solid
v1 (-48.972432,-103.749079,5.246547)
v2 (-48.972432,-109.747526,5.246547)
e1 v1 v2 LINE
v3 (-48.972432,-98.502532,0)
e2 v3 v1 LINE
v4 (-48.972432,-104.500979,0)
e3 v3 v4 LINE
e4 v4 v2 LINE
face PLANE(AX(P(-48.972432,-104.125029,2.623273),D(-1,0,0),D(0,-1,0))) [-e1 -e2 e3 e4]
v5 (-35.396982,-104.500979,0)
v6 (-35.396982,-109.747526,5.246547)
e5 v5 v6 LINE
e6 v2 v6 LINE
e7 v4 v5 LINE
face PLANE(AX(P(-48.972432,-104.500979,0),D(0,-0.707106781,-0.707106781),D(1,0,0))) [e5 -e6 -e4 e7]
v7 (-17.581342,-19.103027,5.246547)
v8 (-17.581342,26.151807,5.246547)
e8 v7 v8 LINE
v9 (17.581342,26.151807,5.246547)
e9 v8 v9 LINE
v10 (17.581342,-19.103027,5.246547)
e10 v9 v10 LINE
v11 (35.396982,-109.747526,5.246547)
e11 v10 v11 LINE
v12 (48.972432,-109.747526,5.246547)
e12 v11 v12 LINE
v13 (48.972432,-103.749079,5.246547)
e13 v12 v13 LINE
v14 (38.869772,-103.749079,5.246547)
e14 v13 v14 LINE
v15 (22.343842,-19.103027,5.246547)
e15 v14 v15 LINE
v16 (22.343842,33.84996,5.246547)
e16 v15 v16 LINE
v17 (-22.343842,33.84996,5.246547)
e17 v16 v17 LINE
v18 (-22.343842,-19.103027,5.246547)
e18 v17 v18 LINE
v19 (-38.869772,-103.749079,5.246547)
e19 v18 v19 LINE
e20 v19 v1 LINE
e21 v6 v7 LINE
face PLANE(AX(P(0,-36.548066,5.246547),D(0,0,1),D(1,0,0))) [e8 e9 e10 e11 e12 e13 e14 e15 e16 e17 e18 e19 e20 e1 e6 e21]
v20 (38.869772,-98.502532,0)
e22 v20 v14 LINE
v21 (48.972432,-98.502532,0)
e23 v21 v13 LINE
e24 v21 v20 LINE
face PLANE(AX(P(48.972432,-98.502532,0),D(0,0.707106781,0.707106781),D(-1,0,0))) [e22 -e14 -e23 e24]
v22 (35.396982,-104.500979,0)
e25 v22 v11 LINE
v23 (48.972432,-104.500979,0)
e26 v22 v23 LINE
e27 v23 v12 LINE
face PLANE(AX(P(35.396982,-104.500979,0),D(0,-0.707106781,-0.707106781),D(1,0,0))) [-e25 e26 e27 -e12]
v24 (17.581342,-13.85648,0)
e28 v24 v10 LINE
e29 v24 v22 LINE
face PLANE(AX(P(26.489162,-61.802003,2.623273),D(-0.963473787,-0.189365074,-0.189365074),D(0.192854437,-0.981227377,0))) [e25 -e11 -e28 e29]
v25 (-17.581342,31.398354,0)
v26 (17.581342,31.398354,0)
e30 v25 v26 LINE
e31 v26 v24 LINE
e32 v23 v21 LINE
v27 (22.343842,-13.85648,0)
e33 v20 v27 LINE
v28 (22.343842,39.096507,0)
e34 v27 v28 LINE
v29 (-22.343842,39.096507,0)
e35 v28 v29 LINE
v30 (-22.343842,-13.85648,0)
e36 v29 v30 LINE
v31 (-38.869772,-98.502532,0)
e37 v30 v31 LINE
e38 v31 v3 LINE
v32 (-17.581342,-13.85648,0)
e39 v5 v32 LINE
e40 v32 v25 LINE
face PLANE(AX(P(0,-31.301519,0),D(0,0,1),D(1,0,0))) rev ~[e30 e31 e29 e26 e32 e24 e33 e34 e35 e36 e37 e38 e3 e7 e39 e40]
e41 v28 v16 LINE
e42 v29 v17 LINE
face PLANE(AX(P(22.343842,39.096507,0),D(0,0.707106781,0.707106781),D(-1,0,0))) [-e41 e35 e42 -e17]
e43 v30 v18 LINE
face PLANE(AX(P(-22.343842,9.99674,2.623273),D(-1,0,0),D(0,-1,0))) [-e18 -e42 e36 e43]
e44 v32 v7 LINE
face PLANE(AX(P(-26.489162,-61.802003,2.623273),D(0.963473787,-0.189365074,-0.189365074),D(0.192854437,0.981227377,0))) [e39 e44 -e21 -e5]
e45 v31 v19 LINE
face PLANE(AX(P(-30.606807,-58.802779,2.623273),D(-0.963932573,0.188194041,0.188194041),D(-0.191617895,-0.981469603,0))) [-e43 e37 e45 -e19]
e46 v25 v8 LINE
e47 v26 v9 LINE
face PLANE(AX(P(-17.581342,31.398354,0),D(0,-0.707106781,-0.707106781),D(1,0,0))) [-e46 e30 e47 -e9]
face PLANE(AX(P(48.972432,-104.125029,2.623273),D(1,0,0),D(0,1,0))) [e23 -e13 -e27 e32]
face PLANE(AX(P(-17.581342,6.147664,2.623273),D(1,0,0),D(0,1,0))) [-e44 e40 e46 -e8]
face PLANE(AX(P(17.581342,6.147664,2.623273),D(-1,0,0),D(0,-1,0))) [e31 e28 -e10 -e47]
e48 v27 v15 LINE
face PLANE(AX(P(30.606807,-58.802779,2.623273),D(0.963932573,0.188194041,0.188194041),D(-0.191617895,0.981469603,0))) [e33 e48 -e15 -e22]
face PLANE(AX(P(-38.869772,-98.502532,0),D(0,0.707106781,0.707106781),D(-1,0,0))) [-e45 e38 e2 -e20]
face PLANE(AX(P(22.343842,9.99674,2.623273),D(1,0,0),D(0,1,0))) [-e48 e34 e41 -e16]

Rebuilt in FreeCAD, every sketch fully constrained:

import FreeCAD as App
import Part
import Sketcher

doc = App.newDocument("Part")
body = doc.addObject("PartDesign::Body", "Body")

sketch1 = body.newObject("Sketcher::SketchObject", "Sketch")
sketch1.AttachmentSupport = (doc.getObject("XY_Plane"), [""])
sketch1.MapMode = "FlatFace"
sketch1.addGeometry(Part.LineSegment(App.Vector(-18, -14, 0), App.Vector(-18, 31, 0)), False)
sketch1.addGeometry(Part.LineSegment(App.Vector(-18, 31, 0), App.Vector(18, 31, 0)), False)
sketch1.addGeometry(Part.LineSegment(App.Vector(18, 31, 0), App.Vector(18, -14, 0)), False)
sketch1.addGeometry(Part.LineSegment(App.Vector(18, -14, 0), App.Vector(35, -105, 0)), False)
sketch1.addGeometry(Part.LineSegment(App.Vector(35, -105, 0), App.Vector(49, -105, 0)), False)
sketch1.addGeometry(Part.LineSegment(App.Vector(49, -105, 0), App.Vector(49, -99, 0)), False)
sketch1.addGeometry(Part.LineSegment(App.Vector(49, -99, 0), App.Vector(39, -99, 0)), False)
sketch1.addGeometry(Part.LineSegment(App.Vector(39, -99, 0), App.Vector(22, -14, 0)), False)
sketch1.addGeometry(Part.LineSegment(App.Vector(22, -14, 0), App.Vector(22, 39, 0)), False)
sketch1.addGeometry(Part.LineSegment(App.Vector(22, 39, 0), App.Vector(-22, 39, 0)), False)
sketch1.addGeometry(Part.LineSegment(App.Vector(-22, 39, 0), App.Vector(-22, -14, 0)), False)
sketch1.addGeometry(Part.LineSegment(App.Vector(-22, -14, 0), App.Vector(-39, -99, 0)), False)
sketch1.addGeometry(Part.LineSegment(App.Vector(-39, -99, 0), App.Vector(-49, -99, 0)), False)
sketch1.addGeometry(Part.LineSegment(App.Vector(-49, -99, 0), App.Vector(-49, -105, 0)), False)
sketch1.addGeometry(Part.LineSegment(App.Vector(-49, -105, 0), App.Vector(-35, -105, 0)), False)
sketch1.addGeometry(Part.LineSegment(App.Vector(-35, -105, 0), App.Vector(-18, -14, 0)), False)
sketch1.addConstraint(Sketcher.Constraint("Coincident", 0, 2, 1, 1))
sketch1.addConstraint(Sketcher.Constraint("Coincident", 1, 2, 2, 1))
sketch1.addConstraint(Sketcher.Constraint("Coincident", 2, 2, 3, 1))
sketch1.addConstraint(Sketcher.Constraint("Coincident", 3, 2, 4, 1))
sketch1.addConstraint(Sketcher.Constraint("Coincident", 4, 2, 5, 1))
sketch1.addConstraint(Sketcher.Constraint("Coincident", 5, 2, 6, 1))
sketch1.addConstraint(Sketcher.Constraint("Coincident", 6, 2, 7, 1))
sketch1.addConstraint(Sketcher.Constraint("Coincident", 7, 2, 8, 1))
sketch1.addConstraint(Sketcher.Constraint("Coincident", 8, 2, 9, 1))
sketch1.addConstraint(Sketcher.Constraint("Coincident", 9, 2, 10, 1))
sketch1.addConstraint(Sketcher.Constraint("Coincident", 10, 2, 11, 1))
sketch1.addConstraint(Sketcher.Constraint("Coincident", 11, 2, 12, 1))
sketch1.addConstraint(Sketcher.Constraint("Coincident", 12, 2, 13, 1))
sketch1.addConstraint(Sketcher.Constraint("Coincident", 13, 2, 14, 1))
sketch1.addConstraint(Sketcher.Constraint("Coincident", 14, 2, 15, 1))
sketch1.addConstraint(Sketcher.Constraint("Coincident", 15, 2, 0, 1))
sketch1.addConstraint(Sketcher.Constraint("Vertical", 0))
sketch1.addConstraint(Sketcher.Constraint("Horizontal", 1))
sketch1.addConstraint(Sketcher.Constraint("Vertical", 2))
sketch1.addConstraint(Sketcher.Constraint("Horizontal", 4))
sketch1.addConstraint(Sketcher.Constraint("Vertical", 5))
sketch1.addConstraint(Sketcher.Constraint("Horizontal", 6))
sketch1.addConstraint(Sketcher.Constraint("Vertical", 8))
sketch1.addConstraint(Sketcher.Constraint("Horizontal", 9))
sketch1.addConstraint(Sketcher.Constraint("Vertical", 10))
sketch1.addConstraint(Sketcher.Constraint("Horizontal", 12))
sketch1.addConstraint(Sketcher.Constraint("Vertical", 13))
sketch1.addConstraint(Sketcher.Constraint("Horizontal", 14))
sketch1.addConstraint(Sketcher.Constraint("Symmetric", 7, 2, 10, 2, -2))
sketch1.addConstraint(Sketcher.Constraint("Symmetric", 6, 2, 11, 2, -2))
sketch1.addConstraint(Sketcher.Constraint("Symmetric", 4, 2, 13, 2, -2))
sketch1.addConstraint(Sketcher.Constraint("Symmetric", 2, 2, 15, 2, -2))
sketch1.addConstraint(Sketcher.Constraint("Horizontal", 2, 2, 7, 2))
sketch1.addConstraint(Sketcher.Constraint("Equal", 4, 14))
sketch1.addConstraint(Sketcher.Constraint("DistanceX", 4, 1, 4, 2, 13.57545))
sketch1.addConstraint(Sketcher.Constraint("DistanceX", 6, 2, 6, 1, 10.102659))
sketch1.addConstraint(Sketcher.Constraint("DistanceY", 3, 2, 2, 2, 90.644499))
sketch1.addConstraint(Sketcher.Constraint("DistanceX", 2, 2, 7, 2, 4.7625))
sketch1.addConstraint(Sketcher.Constraint("Distance", 3, 92.37869))
sketch1.addConstraint(Sketcher.Constraint("Distance", 7, 86.244191))
sketch1.addConstraint(Sketcher.Constraint("DistanceX", 1, 1, 1, 2, 35.162684))
sketch1.addConstraint(Sketcher.Constraint("DistanceY", 0, 1, 0, 2, 45.254834))
sketch1.addConstraint(Sketcher.Constraint("DistanceY", 8, 1, 8, 2, 52.952987))
sketch1.addConstraint(Sketcher.Constraint("DistanceY", 2, 2, -1, 1, 13.85648))

sketch2 = body.newObject("Sketcher::SketchObject", "Sketch001")
sketch2.Placement = App.Placement(App.Vector(0, 0, 0), App.Rotation(App.Vector(0, -0.707106781, 0.707106781), App.Vector(0.999999999, 0, 0), App.Vector(0, 0.707106781, 0.707106781), "ZXY"))
sketch2.addGeometry(Part.LineSegment(App.Vector(0, 0, 0), App.Vector(7, 0, 0)), False)
sketch2.addConstraint(Sketcher.Constraint("Horizontal", 0))
sketch2.addConstraint(Sketcher.Constraint("Coincident", 0, 1, -1, 1))
sketch2.addConstraint(Sketcher.Constraint("DistanceX", 0, 1, 0, 2, 7.419738))
doc.recompute()

additivepipe = body.newObject("PartDesign::AdditivePipe", "AdditivePipe")
additivepipe.Profile = sketch1
additivepipe.Spine = (sketch2, ["Edge1"])

doc.recompute()
